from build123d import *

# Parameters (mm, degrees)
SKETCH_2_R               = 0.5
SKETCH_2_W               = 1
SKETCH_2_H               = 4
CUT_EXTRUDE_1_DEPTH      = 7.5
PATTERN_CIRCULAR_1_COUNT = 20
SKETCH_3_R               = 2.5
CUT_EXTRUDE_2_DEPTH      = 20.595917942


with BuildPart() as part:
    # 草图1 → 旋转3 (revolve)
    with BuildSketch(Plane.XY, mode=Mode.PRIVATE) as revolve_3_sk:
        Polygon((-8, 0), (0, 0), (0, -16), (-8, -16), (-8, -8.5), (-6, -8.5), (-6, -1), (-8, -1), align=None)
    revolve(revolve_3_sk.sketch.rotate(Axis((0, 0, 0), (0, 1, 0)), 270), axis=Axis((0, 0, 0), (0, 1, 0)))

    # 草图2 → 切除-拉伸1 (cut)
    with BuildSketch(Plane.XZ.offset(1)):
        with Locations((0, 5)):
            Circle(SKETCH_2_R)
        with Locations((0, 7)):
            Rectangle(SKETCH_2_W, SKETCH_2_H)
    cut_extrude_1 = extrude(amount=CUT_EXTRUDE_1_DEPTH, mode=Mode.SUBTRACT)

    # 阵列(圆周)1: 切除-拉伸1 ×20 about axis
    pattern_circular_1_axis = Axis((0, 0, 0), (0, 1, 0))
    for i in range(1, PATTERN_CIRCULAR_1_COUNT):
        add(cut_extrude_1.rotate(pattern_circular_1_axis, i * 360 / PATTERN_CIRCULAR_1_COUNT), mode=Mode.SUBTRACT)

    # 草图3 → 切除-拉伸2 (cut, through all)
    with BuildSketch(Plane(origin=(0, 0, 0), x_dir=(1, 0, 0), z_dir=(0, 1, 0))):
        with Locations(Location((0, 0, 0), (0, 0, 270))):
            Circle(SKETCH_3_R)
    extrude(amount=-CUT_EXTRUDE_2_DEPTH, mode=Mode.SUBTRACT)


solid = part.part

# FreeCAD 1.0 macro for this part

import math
import FreeCAD as App
import Part
import Sketcher

doc = App.newDocument("Part")
params = doc.addObject("Spreadsheet::Sheet", "Params")
for row, (alias, value) in enumerate([
    ("sketch1_width", "8 mm"),
    ("sketch1_width2", "2 mm"),
    ("sketch1_height", "1 mm"),
    ("sketch1_height2", "16 mm"),
    ("revolution_angle", "360 deg"),
    ("sketch2_radius", "0.5 mm"),
    ("sketch2_height", "4 mm"),
    ("pocket1_length", "7.5 mm"),
    ("sketch3_diameter", "5 mm"),
], start=1):
    params.set(f"A{row}", alias)
    params.set(f"B{row}", "=" + value)
    params.setAlias(f"B{row}", alias)

body = doc.addObject("PartDesign::Body", "Body")

# Sketch on XY plane
sketch1 = doc.addObject("Sketcher::SketchObject", "Sketch")
body.addObject(sketch1)
sketch1.AttachmentSupport = (doc.XY_Plane, [""])
sketch1.MapMode = "FlatFace"
sketch1.addGeometry([
    Part.LineSegment(App.Vector(0, 0, 0), App.Vector(-8, 0, 0)),  # 0
    Part.LineSegment(App.Vector(-8, 0, 0), App.Vector(-8, -1, 0)),  # 1
    Part.LineSegment(App.Vector(-8, -1, 0), App.Vector(-6, -1, 0)),  # 2
    Part.LineSegment(App.Vector(-6, -1, 0), App.Vector(-6, -8.5, 0)),  # 3
    Part.LineSegment(App.Vector(-6, -8.5, 0), App.Vector(-8, -8.5, 0)),  # 4
    Part.LineSegment(App.Vector(-8, -8.5, 0), App.Vector(-8, -16, 0)),  # 5
    Part.LineSegment(App.Vector(-8, -16, 0), App.Vector(0, -16, 0)),  # 6
    Part.LineSegment(App.Vector(0, -16, 0), App.Vector(0, 0, 0)),  # 7
], False)
sketch1.addConstraint([
    Sketcher.Constraint("Coincident", 0, 2, 1, 1),
    Sketcher.Constraint("Coincident", 1, 2, 2, 1),
    Sketcher.Constraint("Coincident", 2, 2, 3, 1),
    Sketcher.Constraint("Coincident", 3, 2, 4, 1),
    Sketcher.Constraint("Coincident", 4, 2, 5, 1),
    Sketcher.Constraint("Coincident", 5, 2, 6, 1),
    Sketcher.Constraint("Coincident", 6, 2, 7, 1),
    Sketcher.Constraint("Coincident", 7, 2, 0, 1),
    Sketcher.Constraint("Horizontal", 0),
    Sketcher.Constraint("Vertical", 1),
    Sketcher.Constraint("Horizontal", 2),
    Sketcher.Constraint("Vertical", 3),
    Sketcher.Constraint("Horizontal", 4),
    Sketcher.Constraint("Vertical", 5),
    Sketcher.Constraint("Horizontal", 6),
    Sketcher.Constraint("Vertical", 7),
    Sketcher.Constraint("Coincident", 7, 2, -1, 1),
    Sketcher.Constraint("Vertical", 1, 2, 4, 2),
    Sketcher.Constraint("Equal", 3, 5),
    Sketcher.Constraint("DistanceX", 0, 2, 0, 1, 8.0),
    Sketcher.Constraint("DistanceX", 2, 1, 2, 2, 2.0),
    Sketcher.Constraint("DistanceY", 1, 2, 1, 1, 1.0),
    Sketcher.Constraint("DistanceY", 7, 1, 7, 2, 16.0),
])
sketch1.setExpression("Constraints[19]", "Params.sketch1_width")
sketch1.setExpression("Constraints[20]", "Params.sketch1_width2")
sketch1.setExpression("Constraints[21]", "Params.sketch1_height")
sketch1.setExpression("Constraints[22]", "Params.sketch1_height2")
revolution = doc.addObject("PartDesign::Revolution", "Revolution")
body.addObject(revolution)
revolution.Profile = sketch1
revolution.ReferenceAxis = (sketch1, ["V_Axis"])
revolution.setExpression("Angle", "Params.revolution_angle")

# Sketch on XZ plane
sketch2 = doc.addObject("Sketcher::SketchObject", "Sketch001")
body.addObject(sketch2)
sketch2.AttachmentSupport = (doc.XZ_Plane, [""])
sketch2.MapMode = "FlatFace"
sketch2.AttachmentOffset = App.Placement(App.Vector(0, 0, 1), App.Rotation())
sketch2.addGeometry([
    Part.ArcOfCircle(Part.Circle(App.Vector(0, 5, 0), App.Vector(0, 0, 1), 0.5), math.radians(180), math.radians(360)),
    Part.LineSegment(App.Vector(0.5, 5, 0), App.Vector(0.5, 9, 0)),
    Part.LineSegment(App.Vector(0.5, 9, 0), App.Vector(-0.5, 9, 0)),
    Part.LineSegment(App.Vector(-0.5, 9, 0), App.Vector(-0.5, 5, 0)),
], False)
sketch2.addConstraint([
    Sketcher.Constraint("Tangent", 0, 2, 1, 1),
    Sketcher.Constraint("Coincident", 1, 2, 2, 1),
    Sketcher.Constraint("Coincident", 2, 2, 3, 1),
    Sketcher.Constraint("Tangent", 3, 2, 0, 1),
    Sketcher.Constraint("Vertical", 1),
    Sketcher.Constraint("Horizontal", 2),
    Sketcher.Constraint("Vertical", 3),
    Sketcher.Constraint("PointOnObject", 0, 3, -2),
    Sketcher.Constraint("Radius", 0, 0.5),
    Sketcher.Constraint("DistanceY", 1, 1, 1, 2, 4.0),
    Sketcher.Constraint("DistanceY", -1, 1, 0, 3, 5.0),
])
sketch2.setExpression("Constraints[8]", "Params.sketch2_radius")
sketch2.setExpression("Constraints[9]", "Params.sketch2_height")
pocket1 = doc.addObject("PartDesign::Pocket", "Pocket")
body.addObject(pocket1)
pocket1.Profile = sketch2
pocket1.setExpression("Length", "Params.pocket1_length")
pocket1.Reversed = True
doc.recompute()

polarpattern = doc.addObject("PartDesign::PolarPattern", "PolarPattern")
body.addObject(polarpattern)
polarpattern.Originals = [pocket1]
polarpattern.Axis = (doc.Y_Axis, [""])
polarpattern.Angle = 360
polarpattern.Occurrences = 20
body.Tip = polarpattern

# Sketch on XZ plane
sketch3 = doc.addObject("Sketcher::SketchObject", "Sketch002")
body.addObject(sketch3)
sketch3.AttachmentSupport = (doc.XZ_Plane, [""])
sketch3.MapMode = "FlatFace"
sketch3.addGeometry(Part.Circle(App.Vector(0, 0, 0), App.Vector(0, 0, 1), 2.5), False)
sketch3.addConstraint([
    Sketcher.Constraint("Coincident", 0, 3, -1, 1),
    Sketcher.Constraint("Diameter", 0, 5.0),
])
sketch3.setExpression("Constraints[1]", "Params.sketch3_diameter")
pocket2 = doc.addObject("PartDesign::Pocket", "Pocket001")
body.addObject(pocket2)
pocket2.Profile = sketch3
pocket2.Type = "ThroughAll"
pocket2.Reversed = True

doc.recompute()
